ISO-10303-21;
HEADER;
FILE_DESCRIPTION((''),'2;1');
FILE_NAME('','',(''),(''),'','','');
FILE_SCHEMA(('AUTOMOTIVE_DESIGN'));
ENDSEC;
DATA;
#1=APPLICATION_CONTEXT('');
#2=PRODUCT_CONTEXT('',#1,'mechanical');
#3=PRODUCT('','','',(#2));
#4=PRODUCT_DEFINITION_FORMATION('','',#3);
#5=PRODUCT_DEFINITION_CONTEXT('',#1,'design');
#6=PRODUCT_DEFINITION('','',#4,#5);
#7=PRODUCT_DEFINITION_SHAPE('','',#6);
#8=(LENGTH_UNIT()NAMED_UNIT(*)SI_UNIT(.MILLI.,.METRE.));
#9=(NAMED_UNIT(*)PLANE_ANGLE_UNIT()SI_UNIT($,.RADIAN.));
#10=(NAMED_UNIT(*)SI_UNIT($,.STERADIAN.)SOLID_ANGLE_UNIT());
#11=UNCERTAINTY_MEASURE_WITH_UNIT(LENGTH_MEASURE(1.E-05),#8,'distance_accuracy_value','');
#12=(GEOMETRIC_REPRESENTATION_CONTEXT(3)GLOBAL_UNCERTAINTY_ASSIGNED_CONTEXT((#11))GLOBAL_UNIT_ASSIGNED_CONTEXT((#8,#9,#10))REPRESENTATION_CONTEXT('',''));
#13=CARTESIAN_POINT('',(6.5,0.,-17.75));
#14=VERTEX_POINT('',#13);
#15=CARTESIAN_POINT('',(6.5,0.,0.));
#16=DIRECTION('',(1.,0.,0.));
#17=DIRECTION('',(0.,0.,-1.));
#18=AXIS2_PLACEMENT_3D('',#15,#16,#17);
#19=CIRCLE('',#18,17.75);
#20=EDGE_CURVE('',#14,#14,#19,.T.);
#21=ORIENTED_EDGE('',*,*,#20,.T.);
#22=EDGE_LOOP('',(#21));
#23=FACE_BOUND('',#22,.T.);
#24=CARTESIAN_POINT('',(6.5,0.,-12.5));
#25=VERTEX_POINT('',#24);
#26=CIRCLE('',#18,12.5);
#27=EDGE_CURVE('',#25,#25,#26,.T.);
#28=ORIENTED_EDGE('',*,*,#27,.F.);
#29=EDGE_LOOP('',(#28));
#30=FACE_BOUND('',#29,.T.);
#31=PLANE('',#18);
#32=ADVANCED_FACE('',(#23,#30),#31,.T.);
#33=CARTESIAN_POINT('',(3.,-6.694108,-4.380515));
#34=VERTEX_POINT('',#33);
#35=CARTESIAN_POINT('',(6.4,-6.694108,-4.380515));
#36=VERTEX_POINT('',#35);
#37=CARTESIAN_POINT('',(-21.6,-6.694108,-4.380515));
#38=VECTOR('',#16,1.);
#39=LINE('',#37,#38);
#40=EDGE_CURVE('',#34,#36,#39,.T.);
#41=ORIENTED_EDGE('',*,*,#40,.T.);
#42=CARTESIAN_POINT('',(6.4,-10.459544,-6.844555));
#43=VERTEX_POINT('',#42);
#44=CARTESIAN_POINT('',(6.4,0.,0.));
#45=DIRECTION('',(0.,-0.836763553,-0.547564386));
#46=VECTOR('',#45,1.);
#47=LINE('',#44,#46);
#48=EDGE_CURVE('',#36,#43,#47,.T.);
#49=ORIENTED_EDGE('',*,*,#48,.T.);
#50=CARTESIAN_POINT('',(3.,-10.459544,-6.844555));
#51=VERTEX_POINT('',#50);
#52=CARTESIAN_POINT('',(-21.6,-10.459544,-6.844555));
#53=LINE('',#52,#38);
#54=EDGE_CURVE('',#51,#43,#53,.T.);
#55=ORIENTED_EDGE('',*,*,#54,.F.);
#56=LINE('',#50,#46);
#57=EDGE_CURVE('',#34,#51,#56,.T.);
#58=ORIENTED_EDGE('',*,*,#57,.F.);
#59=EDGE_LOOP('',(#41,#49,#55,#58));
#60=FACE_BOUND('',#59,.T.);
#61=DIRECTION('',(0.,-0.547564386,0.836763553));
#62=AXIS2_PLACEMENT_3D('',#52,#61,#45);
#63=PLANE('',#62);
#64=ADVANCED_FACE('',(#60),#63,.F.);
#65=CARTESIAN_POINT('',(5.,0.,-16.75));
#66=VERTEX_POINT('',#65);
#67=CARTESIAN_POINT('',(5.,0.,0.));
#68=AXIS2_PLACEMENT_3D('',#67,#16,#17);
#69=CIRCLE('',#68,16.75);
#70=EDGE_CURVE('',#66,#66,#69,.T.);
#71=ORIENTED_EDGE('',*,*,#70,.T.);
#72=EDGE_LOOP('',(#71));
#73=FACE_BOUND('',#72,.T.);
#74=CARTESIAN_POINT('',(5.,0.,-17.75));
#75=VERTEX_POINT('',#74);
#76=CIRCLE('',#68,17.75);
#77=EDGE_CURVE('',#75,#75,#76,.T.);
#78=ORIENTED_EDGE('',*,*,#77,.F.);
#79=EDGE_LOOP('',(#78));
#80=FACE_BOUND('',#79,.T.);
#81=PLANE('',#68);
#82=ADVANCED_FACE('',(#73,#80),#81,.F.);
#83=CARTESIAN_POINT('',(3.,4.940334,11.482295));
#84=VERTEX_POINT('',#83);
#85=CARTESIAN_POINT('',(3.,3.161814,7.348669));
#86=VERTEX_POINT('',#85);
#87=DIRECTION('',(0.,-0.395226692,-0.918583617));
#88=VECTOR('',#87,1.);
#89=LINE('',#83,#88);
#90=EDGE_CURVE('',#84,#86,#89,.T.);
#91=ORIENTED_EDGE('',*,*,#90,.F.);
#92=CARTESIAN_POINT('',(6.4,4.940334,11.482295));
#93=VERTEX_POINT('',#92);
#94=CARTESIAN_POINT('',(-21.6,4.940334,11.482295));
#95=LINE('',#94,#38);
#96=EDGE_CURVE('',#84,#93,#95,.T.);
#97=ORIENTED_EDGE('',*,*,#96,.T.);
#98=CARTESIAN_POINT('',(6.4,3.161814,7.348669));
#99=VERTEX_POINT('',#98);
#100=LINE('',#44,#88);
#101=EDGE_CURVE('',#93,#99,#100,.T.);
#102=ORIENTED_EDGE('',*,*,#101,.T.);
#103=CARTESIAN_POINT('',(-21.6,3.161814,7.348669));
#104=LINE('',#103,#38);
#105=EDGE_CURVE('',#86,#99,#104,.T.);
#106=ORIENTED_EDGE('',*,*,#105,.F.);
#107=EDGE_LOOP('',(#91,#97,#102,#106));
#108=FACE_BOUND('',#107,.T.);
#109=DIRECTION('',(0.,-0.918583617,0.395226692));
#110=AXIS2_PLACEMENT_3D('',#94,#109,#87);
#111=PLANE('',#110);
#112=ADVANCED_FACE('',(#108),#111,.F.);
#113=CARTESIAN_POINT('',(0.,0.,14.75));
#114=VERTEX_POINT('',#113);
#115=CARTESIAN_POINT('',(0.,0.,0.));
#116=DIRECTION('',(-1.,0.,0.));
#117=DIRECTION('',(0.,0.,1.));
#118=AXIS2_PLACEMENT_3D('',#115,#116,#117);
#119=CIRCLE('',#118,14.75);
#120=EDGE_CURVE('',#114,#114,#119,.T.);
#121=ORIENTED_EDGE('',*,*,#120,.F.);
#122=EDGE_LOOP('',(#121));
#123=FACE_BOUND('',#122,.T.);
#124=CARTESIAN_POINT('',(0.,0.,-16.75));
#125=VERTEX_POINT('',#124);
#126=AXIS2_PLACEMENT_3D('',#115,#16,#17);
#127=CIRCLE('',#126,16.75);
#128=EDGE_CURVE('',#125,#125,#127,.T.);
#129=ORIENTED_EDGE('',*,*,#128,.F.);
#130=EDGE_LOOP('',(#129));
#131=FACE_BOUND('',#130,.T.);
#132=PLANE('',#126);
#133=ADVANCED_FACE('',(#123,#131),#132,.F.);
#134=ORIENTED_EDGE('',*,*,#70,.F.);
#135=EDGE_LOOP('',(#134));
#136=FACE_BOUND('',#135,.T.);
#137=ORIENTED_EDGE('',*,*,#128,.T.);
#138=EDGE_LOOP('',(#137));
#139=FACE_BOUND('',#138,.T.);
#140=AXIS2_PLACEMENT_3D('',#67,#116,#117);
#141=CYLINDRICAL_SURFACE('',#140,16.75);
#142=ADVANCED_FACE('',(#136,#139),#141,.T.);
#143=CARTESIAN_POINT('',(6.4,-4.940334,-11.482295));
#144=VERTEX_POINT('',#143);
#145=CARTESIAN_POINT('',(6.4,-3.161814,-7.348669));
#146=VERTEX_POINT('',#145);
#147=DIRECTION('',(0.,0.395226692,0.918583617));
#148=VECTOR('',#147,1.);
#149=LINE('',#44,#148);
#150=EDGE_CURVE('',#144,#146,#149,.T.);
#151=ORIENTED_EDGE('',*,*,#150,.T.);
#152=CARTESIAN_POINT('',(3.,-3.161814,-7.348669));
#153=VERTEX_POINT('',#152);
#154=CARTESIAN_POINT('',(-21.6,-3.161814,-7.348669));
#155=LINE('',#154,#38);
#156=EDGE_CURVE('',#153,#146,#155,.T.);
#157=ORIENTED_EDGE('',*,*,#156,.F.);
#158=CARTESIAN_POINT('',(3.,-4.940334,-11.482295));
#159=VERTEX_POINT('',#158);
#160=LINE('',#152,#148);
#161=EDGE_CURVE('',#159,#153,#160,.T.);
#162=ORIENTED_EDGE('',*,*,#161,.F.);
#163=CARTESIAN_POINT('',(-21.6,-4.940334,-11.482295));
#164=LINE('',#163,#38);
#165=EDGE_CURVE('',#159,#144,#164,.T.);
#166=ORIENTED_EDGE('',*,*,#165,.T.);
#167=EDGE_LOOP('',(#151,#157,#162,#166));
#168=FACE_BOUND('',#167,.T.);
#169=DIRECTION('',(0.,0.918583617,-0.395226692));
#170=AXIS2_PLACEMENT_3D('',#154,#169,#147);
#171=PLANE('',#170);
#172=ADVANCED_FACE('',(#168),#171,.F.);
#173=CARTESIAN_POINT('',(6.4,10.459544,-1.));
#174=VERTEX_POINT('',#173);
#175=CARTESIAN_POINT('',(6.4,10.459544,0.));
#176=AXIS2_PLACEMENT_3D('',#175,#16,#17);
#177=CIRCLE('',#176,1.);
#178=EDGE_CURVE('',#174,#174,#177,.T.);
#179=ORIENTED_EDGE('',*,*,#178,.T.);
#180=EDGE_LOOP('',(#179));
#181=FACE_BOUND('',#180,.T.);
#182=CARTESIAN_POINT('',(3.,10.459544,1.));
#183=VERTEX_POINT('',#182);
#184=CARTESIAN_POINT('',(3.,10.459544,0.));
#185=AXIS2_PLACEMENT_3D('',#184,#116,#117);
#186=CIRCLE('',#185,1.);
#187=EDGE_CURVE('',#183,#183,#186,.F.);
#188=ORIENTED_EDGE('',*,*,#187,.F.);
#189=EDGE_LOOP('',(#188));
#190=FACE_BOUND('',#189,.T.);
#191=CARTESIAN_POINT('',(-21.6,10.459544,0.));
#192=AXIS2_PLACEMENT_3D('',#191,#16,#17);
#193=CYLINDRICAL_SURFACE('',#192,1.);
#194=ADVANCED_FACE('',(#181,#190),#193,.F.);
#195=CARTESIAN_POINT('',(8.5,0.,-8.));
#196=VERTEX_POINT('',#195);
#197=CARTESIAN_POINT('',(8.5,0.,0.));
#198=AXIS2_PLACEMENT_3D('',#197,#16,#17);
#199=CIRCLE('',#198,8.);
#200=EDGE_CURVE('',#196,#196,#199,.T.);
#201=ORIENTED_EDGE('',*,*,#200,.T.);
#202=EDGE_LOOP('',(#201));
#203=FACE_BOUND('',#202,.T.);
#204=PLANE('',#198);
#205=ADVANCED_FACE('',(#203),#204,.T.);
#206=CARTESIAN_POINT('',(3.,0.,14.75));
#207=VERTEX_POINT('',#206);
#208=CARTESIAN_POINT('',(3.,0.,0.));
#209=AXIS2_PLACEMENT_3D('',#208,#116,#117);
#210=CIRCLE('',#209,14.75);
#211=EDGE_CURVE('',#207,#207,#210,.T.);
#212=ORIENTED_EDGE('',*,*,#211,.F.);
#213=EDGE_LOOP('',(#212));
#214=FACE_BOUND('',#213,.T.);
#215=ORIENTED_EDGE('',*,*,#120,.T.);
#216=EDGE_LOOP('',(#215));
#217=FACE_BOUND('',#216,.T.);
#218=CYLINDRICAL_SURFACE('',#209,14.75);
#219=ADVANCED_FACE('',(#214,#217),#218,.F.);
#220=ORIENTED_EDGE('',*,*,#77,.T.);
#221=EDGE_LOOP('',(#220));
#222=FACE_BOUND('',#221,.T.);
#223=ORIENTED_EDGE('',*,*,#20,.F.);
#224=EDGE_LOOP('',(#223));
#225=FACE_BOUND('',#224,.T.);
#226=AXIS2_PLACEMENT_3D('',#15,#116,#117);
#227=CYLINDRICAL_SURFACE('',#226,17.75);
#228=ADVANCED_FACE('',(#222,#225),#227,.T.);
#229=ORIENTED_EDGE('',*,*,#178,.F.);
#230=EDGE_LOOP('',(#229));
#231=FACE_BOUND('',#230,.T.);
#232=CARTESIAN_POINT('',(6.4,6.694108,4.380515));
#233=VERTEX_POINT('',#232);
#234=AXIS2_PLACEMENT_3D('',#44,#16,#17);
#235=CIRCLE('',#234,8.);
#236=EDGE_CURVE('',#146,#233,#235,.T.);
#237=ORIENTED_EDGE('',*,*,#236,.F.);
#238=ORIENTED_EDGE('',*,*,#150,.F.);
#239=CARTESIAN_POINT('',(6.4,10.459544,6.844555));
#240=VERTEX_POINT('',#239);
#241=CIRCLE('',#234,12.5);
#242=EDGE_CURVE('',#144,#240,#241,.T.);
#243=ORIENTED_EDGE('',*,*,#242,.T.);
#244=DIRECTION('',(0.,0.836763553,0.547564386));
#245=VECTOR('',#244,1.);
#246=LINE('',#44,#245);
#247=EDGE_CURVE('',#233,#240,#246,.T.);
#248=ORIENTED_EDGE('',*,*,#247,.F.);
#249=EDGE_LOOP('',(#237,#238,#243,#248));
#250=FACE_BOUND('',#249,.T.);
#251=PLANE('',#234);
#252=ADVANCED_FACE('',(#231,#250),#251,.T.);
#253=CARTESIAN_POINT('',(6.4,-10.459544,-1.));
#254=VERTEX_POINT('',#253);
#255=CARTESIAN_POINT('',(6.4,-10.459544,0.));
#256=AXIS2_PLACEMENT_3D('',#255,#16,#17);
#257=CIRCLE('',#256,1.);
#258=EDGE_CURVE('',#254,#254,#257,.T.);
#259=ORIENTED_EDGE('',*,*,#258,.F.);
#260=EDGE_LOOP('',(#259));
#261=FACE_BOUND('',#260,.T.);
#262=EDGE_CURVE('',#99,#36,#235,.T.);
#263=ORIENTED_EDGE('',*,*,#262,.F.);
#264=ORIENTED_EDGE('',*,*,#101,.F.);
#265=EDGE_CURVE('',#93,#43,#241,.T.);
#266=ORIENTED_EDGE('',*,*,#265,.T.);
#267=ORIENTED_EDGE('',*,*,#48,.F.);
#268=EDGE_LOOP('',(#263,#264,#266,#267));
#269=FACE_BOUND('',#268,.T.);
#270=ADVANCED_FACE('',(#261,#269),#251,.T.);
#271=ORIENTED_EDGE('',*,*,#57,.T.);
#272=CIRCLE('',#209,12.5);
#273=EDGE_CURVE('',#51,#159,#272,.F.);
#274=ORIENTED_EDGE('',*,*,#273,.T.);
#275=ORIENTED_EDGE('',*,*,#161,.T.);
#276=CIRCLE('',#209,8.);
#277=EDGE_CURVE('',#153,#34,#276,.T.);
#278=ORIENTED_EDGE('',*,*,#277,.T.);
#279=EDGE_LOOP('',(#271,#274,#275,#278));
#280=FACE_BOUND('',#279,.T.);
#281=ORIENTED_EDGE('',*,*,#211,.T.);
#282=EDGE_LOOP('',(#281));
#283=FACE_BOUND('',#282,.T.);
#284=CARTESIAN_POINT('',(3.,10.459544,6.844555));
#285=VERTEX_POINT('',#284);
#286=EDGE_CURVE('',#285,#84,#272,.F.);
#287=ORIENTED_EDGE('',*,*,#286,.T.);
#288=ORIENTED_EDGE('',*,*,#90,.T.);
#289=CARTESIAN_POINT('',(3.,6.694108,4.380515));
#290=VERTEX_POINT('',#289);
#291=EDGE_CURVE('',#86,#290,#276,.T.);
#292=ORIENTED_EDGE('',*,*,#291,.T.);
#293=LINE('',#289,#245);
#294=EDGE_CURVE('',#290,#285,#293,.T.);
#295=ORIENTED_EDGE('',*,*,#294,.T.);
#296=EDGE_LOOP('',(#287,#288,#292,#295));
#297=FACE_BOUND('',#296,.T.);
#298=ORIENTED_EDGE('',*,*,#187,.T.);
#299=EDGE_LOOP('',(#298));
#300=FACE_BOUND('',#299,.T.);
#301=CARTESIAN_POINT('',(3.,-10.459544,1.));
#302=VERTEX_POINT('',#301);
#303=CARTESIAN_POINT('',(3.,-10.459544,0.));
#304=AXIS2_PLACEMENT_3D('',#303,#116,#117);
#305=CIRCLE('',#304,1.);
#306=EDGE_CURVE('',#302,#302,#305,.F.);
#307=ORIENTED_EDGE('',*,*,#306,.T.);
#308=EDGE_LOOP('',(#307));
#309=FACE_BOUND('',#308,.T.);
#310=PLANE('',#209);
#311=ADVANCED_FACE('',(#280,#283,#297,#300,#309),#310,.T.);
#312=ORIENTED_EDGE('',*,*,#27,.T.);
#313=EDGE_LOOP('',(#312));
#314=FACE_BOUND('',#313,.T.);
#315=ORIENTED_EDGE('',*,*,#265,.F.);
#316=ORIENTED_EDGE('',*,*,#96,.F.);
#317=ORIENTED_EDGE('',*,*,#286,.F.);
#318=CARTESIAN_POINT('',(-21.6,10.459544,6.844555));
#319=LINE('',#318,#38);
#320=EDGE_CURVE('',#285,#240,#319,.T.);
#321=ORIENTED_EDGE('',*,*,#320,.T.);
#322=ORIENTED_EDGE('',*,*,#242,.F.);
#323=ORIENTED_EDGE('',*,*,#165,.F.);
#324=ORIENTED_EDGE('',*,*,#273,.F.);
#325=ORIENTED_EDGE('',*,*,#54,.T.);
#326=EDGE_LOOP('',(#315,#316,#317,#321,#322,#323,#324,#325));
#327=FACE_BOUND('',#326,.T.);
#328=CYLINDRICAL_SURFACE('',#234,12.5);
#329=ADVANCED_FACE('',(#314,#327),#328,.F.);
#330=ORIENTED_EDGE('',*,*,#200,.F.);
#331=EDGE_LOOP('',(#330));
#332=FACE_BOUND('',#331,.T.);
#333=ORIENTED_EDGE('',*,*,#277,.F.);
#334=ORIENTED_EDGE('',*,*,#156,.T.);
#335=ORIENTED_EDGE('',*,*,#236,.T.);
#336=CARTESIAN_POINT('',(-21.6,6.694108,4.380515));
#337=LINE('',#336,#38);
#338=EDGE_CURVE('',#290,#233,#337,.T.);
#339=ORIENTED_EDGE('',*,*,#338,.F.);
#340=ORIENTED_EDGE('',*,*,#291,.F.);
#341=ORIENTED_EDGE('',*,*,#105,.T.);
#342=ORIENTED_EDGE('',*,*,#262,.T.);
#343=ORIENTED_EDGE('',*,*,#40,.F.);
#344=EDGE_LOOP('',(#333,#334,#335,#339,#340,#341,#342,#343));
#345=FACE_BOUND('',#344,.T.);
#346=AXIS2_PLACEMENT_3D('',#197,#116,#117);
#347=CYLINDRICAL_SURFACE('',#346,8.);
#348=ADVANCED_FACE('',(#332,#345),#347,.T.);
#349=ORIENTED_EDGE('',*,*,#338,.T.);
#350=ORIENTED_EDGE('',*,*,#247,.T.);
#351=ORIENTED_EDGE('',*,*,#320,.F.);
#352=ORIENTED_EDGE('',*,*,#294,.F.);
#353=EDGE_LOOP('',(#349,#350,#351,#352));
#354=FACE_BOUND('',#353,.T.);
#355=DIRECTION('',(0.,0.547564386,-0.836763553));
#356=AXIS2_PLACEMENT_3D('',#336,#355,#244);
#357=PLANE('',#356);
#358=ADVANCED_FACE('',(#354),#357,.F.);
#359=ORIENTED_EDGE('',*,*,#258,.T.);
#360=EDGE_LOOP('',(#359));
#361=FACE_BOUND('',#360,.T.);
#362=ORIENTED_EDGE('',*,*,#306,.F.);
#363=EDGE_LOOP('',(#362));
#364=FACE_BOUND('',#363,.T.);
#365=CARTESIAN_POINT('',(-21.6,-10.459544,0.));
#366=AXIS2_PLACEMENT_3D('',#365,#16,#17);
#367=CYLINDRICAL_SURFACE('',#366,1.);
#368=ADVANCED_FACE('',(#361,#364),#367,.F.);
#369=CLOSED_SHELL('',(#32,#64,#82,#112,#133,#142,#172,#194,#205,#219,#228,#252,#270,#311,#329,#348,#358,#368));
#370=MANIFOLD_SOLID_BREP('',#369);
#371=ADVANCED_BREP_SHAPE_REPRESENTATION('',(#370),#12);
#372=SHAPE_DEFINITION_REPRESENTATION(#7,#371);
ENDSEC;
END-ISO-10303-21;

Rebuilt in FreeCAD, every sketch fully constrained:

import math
import FreeCAD as App
import Part
import Sketcher

doc = App.newDocument("Part")
body = doc.addObject("PartDesign::Body", "Body")

sketch1 = doc.addObject("Sketcher::SketchObject", "Sketch")
body.addObject(sketch1)
sketch1.AttachmentSupport = (doc.YZ_Plane, [""])
sketch1.MapMode = "FlatFace"
sketch1.addGeometry(Part.Circle(App.Vector(0, 0, 0), App.Vector(0, 0, 1), 17), False)
sketch1.addConstraint([
    Sketcher.Constraint("Coincident", 0, 3, -1, 1),
    Sketcher.Constraint("Diameter", 0, 33.5),
])
pad1 = doc.addObject("PartDesign::Pad", "Pad")
body.addObject(pad1)
pad1.Profile = sketch1
pad1.Length = 5

sketch2 = doc.addObject("Sketcher::SketchObject", "Sketch001")
body.addObject(sketch2)
sketch2.AttachmentSupport = (doc.YZ_Plane, [""])
sketch2.MapMode = "FlatFace"
sketch2.AttachmentOffset = App.Placement(App.Vector(0, 0, 5), App.Rotation())
sketch2.addGeometry(Part.Circle(App.Vector(0, 0, 0), App.Vector(0, 0, 1), 18), False)
sketch2.addConstraint([
    Sketcher.Constraint("Coincident", 0, 3, -1, 1),
    Sketcher.Constraint("Diameter", 0, 35.5),
])
pad2 = doc.addObject("PartDesign::Pad", "Pad001")
body.addObject(pad2)
pad2.Profile = sketch2
pad2.Length = 1.5

sketch3 = doc.addObject("Sketcher::SketchObject", "Sketch002")
body.addObject(sketch3)
sketch3.AttachmentSupport = (doc.YZ_Plane, [""])
sketch3.MapMode = "FlatFace"
sketch3.AttachmentOffset = App.Placement(App.Vector(0, 0, 6.5), App.Rotation())
sketch3.addGeometry(Part.Circle(App.Vector(0, 0, 0), App.Vector(0, 0, 1), 8), False)
sketch3.addConstraint([
    Sketcher.Constraint("Coincident", 0, 3, -1, 1),
    Sketcher.Constraint("Diameter", 0, 16.0),
])
pad3 = doc.addObject("PartDesign::Pad", "Pad002")
body.addObject(pad3)
pad3.Profile = sketch3
pad3.Length = 2

sketch4 = doc.addObject("Sketcher::SketchObject", "Sketch003")
body.addObject(sketch4)
sketch4.AttachmentSupport = (doc.YZ_Plane, [""])
sketch4.MapMode = "FlatFace"
sketch4.AttachmentOffset = App.Placement(App.Vector(0, 0, 6.5), App.Rotation())
sketch4.addGeometry([
    Part.Circle(App.Vector(0, 0, 0), App.Vector(0, 0, 1), 12),
    Part.Circle(App.Vector(0, 0, 0), App.Vector(0, 0, 1), 8),
], False)
sketch4.addConstraint([
    Sketcher.Constraint("Coincident", 0, 3, -1, 1),
    Sketcher.Constraint("Coincident", 1, 3, -1, 1),
    Sketcher.Constraint("Diameter", 0, 25.0),
    Sketcher.Constraint("Diameter", 1, 16.0),
])
pocket1 = doc.addObject("PartDesign::Pocket", "Pocket")
body.addObject(pocket1)
pocket1.Profile = sketch4
pocket1.Length = 0.1

sketch5 = doc.addObject("Sketcher::SketchObject", "Sketch004")
body.addObject(sketch5)
sketch5.AttachmentSupport = (doc.YZ_Plane, [""])
sketch5.MapMode = "FlatFace"
sketch5.AttachmentOffset = App.Placement(App.Vector(0, 0, 8.5), App.Rotation())
sketch5.addGeometry([
    Part.Circle(App.Vector(10.5, 0, 0), App.Vector(0, 0, 1), 1),
    Part.Circle(App.Vector(-10.5, 0, 0), App.Vector(0, 0, 1), 1),
    Part.LineSegment(App.Vector(4.9, 11.5, 0), App.Vector(3.2, 7.3, 0)),
    Part.ArcOfCircle(Part.Circle(App.Vector(0, 0, 0), App.Vector(0, 0, 1), 8), math.radians(33), math.radians(67)),
    Part.LineSegment(App.Vector(6.7, 4.4, 0), App.Vector(10.5, 6.8, 0)),
    Part.ArcOfCircle(Part.Circle(App.Vector(0, 0, 0), App.Vector(0, 0, 1), 12.5), math.radians(33), math.radians(67)),
    Part.LineSegment(App.Vector(-6.7, -4.4, 0), App.Vector(-10.5, -6.8, 0)),
    Part.ArcOfCircle(Part.Circle(App.Vector(0, 0, 0), App.Vector(0, 0, 1), 12.5), math.radians(-147), math.radians(-113)),
    Part.LineSegment(App.Vector(-4.9, -11.5, 0), App.Vector(-3.2, -7.3, 0)),
    Part.ArcOfCircle(Part.Circle(App.Vector(0, 0, 0), App.Vector(0, 0, 1), 8), math.radians(-147), math.radians(-113)),
], False)
sketch5.addConstraint([
    Sketcher.Constraint("Coincident", 2, 2, 3, 2),
    Sketcher.Constraint("Coincident", 3, 1, 4, 1),
    Sketcher.Constraint("Coincident", 4, 2, 5, 1),
    Sketcher.Constraint("Coincident", 5, 2, 2, 1),
    Sketcher.Constraint("Coincident", 6, 2, 7, 1),
    Sketcher.Constraint("Coincident", 7, 2, 8, 1),
    Sketcher.Constraint("Coincident", 8, 2, 9, 2),
    Sketcher.Constraint("Coincident", 9, 1, 6, 1),
    Sketcher.Constraint("Coincident", 3, 3, -1, 1),
    Sketcher.Constraint("Coincident", 5, 3, -1, 1),
    Sketcher.Constraint("Coincident", 7, 3, -1, 1),
    Sketcher.Constraint("Coincident", 9, 3, -1, 1),
    Sketcher.Constraint("Equal", 0, 1),
    Sketcher.Constraint("Equal", 5, 7),
    Sketcher.Constraint("Equal", 3, 9),
    Sketcher.Constraint("Symmetric", 0, 3, 1, 3, -1, 1),
    Sketcher.Constraint("PointOnObject", 0, 3, -1),
    Sketcher.Constraint("Parallel", 4, 6),
    Sketcher.Constraint("Parallel", 2, 8),
    Sketcher.Constraint("Vertical", 0, 3, 4, 2),
    Sketcher.Constraint("Vertical", 1, 3, 6, 2),
    Sketcher.Constraint("Diameter", 0, 2.0),
    Sketcher.Constraint("Radius", 3, 8.0),
    Sketcher.Constraint("Radius", 5, 12.5),
    Sketcher.Constraint("DistanceY", -1, 1, 2, 2, 7.348669),
    Sketcher.Constraint("DistanceX", -1, 1, 3, 1, 6.694108),
    Sketcher.Constraint("DistanceY", 8, 2, -1, 1, 7.348669),
    Sketcher.Constraint("DistanceX", 1, 3, 0, 3, 20.919089),
    Sketcher.Constraint("DistanceX", 2, 2, 5, 2, 1.77852),
])
pocket2 = doc.addObject("PartDesign::Pocket", "Pocket001")
body.addObject(pocket2)
pocket2.Profile = sketch5
pocket2.Length = 30.1

sketch6 = doc.addObject("Sketcher::SketchObject", "Sketch005")
body.addObject(sketch6)
sketch6.AttachmentSupport = (doc.YZ_Plane, [""])
sketch6.MapMode = "FlatFace"
sketch6.addGeometry(Part.Circle(App.Vector(0, 0, 0), App.Vector(0, 0, 1), 15), False)
sketch6.addConstraint([
    Sketcher.Constraint("Coincident", 0, 3, -1, 1),
    Sketcher.Constraint("Diameter", 0, 29.5),
])
pocket3 = doc.addObject("PartDesign::Pocket", "Pocket002")
body.addObject(pocket3)
pocket3.Profile = sketch6
pocket3.Length = 3
pocket3.Reversed = True

doc.recompute()
